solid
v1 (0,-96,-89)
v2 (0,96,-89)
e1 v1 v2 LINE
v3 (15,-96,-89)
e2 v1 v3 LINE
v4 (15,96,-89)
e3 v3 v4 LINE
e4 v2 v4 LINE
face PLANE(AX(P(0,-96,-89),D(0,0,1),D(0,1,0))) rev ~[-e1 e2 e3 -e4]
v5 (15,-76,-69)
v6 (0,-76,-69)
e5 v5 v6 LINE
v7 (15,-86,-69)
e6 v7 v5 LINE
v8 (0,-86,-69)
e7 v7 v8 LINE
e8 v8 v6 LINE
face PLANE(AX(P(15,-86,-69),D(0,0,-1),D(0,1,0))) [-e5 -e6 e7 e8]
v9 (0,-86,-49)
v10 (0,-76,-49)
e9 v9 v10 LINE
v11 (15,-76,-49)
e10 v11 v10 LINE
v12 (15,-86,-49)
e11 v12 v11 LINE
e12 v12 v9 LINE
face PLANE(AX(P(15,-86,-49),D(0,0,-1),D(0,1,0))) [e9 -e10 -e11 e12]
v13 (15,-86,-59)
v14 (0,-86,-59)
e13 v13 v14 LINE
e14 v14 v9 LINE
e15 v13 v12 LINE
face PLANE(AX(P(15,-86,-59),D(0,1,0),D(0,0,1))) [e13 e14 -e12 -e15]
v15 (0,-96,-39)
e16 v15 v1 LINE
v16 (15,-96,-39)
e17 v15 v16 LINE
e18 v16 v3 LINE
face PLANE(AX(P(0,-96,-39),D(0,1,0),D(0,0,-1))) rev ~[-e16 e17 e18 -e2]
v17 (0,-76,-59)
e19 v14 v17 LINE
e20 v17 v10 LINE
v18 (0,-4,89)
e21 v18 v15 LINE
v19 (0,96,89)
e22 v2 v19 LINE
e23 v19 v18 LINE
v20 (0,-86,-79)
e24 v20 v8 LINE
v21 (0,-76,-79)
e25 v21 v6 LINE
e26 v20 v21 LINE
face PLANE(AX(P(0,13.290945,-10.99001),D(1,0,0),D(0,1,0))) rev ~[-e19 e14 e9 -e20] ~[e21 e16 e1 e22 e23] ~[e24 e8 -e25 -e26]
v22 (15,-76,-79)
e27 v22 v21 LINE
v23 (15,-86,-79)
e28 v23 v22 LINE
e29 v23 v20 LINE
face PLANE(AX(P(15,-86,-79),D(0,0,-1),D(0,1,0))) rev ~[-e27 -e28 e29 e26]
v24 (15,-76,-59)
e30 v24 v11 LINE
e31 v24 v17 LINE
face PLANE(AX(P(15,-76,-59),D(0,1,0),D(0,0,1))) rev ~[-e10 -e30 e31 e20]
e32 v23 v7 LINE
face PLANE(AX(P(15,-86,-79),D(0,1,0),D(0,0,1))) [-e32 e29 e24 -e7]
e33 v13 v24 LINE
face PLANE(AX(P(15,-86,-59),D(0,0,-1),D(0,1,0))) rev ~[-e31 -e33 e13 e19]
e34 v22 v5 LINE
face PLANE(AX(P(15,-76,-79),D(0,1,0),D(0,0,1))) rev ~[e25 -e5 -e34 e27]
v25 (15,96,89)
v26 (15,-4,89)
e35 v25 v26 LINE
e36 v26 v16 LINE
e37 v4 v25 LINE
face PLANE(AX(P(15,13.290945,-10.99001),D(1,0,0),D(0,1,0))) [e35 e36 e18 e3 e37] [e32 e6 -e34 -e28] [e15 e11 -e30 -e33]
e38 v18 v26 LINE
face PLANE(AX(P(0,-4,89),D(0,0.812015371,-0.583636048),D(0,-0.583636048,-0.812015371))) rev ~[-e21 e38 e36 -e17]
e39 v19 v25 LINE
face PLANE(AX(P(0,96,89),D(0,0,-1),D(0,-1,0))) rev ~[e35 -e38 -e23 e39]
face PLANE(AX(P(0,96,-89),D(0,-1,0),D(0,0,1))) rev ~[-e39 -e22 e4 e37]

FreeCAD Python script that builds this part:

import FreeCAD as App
import Part
import Sketcher

V = App.Vector


def add_polygon(sketch, points):
    """Adds a closed chain of lines whose ends are joined by coincident constraints."""
    first, n = sketch.GeometryCount, len(points)
    for a, b in zip(points, points[1:] + points[:1]):
        sketch.addGeometry(Part.LineSegment(App.Vector(*a, 0), App.Vector(*b, 0)), False)
    for i in range(n):
        sketch.addConstraint(Sketcher.Constraint("Coincident", first + i, 2, first + (i + 1) % n, 1))

doc = App.newDocument("Part")
params = doc.addObject("Spreadsheet::Sheet", "Params")
for row, (alias, value) in enumerate([
    ("sketch1_width", "192 mm"),
    ("sketch1_width2", "100 mm"),
    ("sketch1_height", "178 mm"),
    ("sketch1_height2", "50 mm"),
    ("pad1_length", "15 mm"),
    ("sketch2_width", "10 mm"),
    ("pocket1_length", "15 mm"),
], start=1):
    params.set(f"A{row}", alias)
    params.set(f"B{row}", "=" + value)
    params.setAlias(f"B{row}", alias)

body = doc.addObject("PartDesign::Body", "Body")

sketch1 = doc.addObject("Sketcher::SketchObject", "Sketch")
body.addObject(sketch1)
sketch1.AttachmentSupport = (doc.YZ_Plane, [""])
sketch1.MapMode = "FlatFace"
add_polygon(sketch1, [(-96, -89), (96, -89), (96, 89), (-4, 89), (-96, -39)])
sketch1.addConstraint(Sketcher.Constraint("Horizontal", 0))
sketch1.addConstraint(Sketcher.Constraint("Vertical", 1))
sketch1.addConstraint(Sketcher.Constraint("Horizontal", 2))
sketch1.addConstraint(Sketcher.Constraint("Vertical", 4))
sketch1.addConstraint(Sketcher.Constraint("Symmetric", 1, 2, 4, 2, -1, 1))
sketch1.addConstraint(Sketcher.Constraint("DistanceX", 0, 1, 0, 2, 192.0))
sketch1.addConstraint(Sketcher.Constraint("DistanceX", 2, 2, 2, 1, 100.0))
sketch1.addConstraint(Sketcher.Constraint("DistanceY", 1, 1, 1, 2, 178.0))
sketch1.addConstraint(Sketcher.Constraint("DistanceY", 4, 2, 4, 1, 50.0))
sketch1.setExpression("Constraints[10]", "Params.sketch1_width")
sketch1.setExpression("Constraints[11]", "Params.sketch1_width2")
sketch1.setExpression("Constraints[12]", "Params.sketch1_height")
sketch1.setExpression("Constraints[13]", "Params.sketch1_height2")
pad1 = doc.addObject("PartDesign::Pad", "Pad")
body.addObject(pad1)
pad1.Profile = sketch1
pad1.setExpression("Length", "Params.pad1_length")

sketch2 = doc.addObject("Sketcher::SketchObject", "Sketch001")
body.addObject(sketch2)
sketch2.AttachmentSupport = (doc.YZ_Plane, [""])
sketch2.MapMode = "FlatFace"
sketch2.AttachmentOffset = App.Placement(V(0, 0, 15), App.Rotation())
add_polygon(sketch2, [(-86, -49), (-86, -59), (-76, -59), (-76, -49)])
add_polygon(sketch2, [(-86, -69), (-86, -79), (-76, -79), (-76, -69)])
sketch2.addConstraint(Sketcher.Constraint("Vertical", 0))
sketch2.addConstraint(Sketcher.Constraint("Horizontal", 1))
sketch2.addConstraint(Sketcher.Constraint("Vertical", 2))
sketch2.addConstraint(Sketcher.Constraint("Horizontal", 3))
sketch2.addConstraint(Sketcher.Constraint("Vertical", 4))
sketch2.addConstraint(Sketcher.Constraint("Horizontal", 5))
sketch2.addConstraint(Sketcher.Constraint("Vertical", 6))
sketch2.addConstraint(Sketcher.Constraint("Horizontal", 7))
sketch2.addConstraint(Sketcher.Constraint("Vertical", 3, 2, 4, 2))
sketch2.addConstraint(Sketcher.Constraint("Vertical", 2, 2, 5, 2))
sketch2.addConstraint(Sketcher.Constraint("Equal", 7, 0))
sketch2.addConstraint(Sketcher.Constraint("Equal", 2, 4))
sketch2.addConstraint(Sketcher.Constraint("DistanceX", 1, 1, 1, 2, 10.0))
sketch2.addConstraint(Sketcher.Constraint("DistanceX", 0, 2, -1, 1, 86.0))
sketch2.addConstraint(Sketcher.Constraint("DistanceY", 0, 2, -1, 1, 59.0))
sketch2.addConstraint(Sketcher.Constraint("DistanceY", 4, 2, -1, 1, 79.0))
sketch2.setExpression("Constraints[20]", "Params.sketch2_width")
pocket1 = doc.addObject("PartDesign::Pocket", "Pocket")
body.addObject(pocket1)
pocket1.Profile = sketch2
pocket1.setExpression("Length", "Params.pocket1_length")

doc.recompute()
